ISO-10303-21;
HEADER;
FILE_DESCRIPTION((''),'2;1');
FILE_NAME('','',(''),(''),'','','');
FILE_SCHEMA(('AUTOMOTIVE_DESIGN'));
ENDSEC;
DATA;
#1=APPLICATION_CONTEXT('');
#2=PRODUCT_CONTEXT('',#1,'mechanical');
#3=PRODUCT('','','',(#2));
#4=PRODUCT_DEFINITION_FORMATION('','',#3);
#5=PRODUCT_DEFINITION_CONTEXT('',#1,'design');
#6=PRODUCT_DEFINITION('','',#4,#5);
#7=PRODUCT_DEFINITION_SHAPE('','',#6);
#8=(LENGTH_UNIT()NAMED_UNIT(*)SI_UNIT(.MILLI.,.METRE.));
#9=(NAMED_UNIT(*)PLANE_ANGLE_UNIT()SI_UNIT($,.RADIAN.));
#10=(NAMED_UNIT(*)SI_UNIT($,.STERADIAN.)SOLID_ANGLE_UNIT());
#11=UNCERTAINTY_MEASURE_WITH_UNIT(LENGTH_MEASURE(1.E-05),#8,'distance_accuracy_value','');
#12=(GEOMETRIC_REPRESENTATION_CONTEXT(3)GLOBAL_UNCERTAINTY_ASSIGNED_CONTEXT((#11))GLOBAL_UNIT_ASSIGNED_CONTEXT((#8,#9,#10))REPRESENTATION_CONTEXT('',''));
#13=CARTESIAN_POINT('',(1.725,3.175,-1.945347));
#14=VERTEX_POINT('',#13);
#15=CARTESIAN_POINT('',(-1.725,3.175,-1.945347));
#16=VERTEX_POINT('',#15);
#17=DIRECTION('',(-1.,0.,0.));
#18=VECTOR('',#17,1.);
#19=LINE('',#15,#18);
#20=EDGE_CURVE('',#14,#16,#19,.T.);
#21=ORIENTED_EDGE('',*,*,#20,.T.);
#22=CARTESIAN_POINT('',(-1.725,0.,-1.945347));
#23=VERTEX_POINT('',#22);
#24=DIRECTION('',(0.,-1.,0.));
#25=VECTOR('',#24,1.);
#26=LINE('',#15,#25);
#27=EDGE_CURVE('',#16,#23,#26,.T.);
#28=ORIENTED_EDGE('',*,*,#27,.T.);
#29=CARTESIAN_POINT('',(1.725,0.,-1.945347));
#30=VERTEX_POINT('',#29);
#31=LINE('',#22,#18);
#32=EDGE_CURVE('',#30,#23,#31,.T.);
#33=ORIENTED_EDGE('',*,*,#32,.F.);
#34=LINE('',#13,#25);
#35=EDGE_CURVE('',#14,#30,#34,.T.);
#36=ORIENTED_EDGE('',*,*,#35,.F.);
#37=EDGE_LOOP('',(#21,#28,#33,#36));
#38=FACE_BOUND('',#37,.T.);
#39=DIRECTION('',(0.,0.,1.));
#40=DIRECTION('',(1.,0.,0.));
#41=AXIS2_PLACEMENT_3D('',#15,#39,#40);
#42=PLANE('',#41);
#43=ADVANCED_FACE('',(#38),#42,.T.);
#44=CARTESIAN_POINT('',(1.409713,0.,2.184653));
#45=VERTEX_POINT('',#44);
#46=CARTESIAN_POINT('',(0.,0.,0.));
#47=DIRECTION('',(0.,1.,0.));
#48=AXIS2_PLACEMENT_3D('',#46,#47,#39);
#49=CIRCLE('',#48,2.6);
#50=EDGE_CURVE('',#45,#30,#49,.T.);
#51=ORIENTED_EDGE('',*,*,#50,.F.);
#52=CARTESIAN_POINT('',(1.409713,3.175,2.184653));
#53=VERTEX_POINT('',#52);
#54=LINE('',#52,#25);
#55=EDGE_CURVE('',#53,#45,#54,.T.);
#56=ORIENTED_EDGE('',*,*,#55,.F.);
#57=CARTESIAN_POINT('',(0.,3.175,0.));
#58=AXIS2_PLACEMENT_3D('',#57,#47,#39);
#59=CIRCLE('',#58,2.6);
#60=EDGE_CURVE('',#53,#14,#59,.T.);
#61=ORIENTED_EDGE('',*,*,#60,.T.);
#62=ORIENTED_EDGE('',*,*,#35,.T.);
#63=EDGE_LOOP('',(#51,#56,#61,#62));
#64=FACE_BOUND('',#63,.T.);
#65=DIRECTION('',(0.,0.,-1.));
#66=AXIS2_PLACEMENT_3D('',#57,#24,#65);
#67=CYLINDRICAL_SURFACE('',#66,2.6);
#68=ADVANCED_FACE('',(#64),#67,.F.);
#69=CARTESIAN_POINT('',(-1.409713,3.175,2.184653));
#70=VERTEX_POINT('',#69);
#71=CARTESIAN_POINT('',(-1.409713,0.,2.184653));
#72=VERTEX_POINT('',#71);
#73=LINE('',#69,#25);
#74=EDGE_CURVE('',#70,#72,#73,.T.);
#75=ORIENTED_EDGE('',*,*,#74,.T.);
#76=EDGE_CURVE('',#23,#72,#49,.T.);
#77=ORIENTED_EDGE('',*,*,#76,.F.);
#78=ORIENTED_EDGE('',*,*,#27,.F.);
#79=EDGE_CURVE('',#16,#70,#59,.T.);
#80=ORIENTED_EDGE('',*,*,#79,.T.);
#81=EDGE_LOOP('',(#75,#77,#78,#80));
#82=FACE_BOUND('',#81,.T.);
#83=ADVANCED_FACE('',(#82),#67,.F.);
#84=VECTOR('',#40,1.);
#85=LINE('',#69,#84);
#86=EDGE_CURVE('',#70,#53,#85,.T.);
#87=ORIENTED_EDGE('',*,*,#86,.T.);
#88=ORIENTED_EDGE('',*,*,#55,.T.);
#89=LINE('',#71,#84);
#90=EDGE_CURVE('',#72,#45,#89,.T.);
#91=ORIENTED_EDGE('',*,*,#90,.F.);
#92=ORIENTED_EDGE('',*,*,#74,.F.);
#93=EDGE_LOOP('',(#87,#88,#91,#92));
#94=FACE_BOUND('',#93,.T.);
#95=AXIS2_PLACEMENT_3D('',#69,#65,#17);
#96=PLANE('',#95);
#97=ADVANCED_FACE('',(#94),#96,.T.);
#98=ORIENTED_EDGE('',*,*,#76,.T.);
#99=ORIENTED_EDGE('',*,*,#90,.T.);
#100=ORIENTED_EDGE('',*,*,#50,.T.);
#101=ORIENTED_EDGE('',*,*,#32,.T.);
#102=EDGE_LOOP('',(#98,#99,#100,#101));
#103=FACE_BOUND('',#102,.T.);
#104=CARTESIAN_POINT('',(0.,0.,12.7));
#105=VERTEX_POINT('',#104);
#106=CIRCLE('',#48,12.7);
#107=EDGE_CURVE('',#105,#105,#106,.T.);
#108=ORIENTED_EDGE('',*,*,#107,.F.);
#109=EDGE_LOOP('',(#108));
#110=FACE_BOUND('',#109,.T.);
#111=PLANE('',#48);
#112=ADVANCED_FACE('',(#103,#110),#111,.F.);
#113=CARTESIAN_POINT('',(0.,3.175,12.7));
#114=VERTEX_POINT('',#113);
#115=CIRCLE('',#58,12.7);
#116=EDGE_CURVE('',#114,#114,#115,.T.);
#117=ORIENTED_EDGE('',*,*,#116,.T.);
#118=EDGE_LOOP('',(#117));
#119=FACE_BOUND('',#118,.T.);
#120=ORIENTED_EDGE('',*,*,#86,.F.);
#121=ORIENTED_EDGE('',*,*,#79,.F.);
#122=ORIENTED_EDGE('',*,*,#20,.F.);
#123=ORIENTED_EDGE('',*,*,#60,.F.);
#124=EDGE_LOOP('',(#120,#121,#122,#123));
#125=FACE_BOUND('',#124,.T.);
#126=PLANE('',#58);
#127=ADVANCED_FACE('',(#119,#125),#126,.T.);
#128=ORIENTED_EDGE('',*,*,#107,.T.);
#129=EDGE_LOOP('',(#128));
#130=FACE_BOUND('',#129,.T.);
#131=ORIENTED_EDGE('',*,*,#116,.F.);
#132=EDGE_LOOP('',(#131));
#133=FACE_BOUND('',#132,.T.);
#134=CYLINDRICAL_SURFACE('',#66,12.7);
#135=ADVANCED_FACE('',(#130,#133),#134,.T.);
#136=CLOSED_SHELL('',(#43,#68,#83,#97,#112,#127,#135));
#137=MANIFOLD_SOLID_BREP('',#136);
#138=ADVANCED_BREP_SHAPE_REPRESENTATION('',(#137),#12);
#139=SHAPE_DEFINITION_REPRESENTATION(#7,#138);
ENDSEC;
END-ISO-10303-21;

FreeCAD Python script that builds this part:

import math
import FreeCAD as App
import Part
import Sketcher
Q = App.Units.Quantity

doc = App.newDocument("Part")
body = doc.addObject("PartDesign::Body", "Body")

sketch1 = doc.addObject("Sketcher::SketchObject", "Sketch")
body.addObject(sketch1)
sketch1.AttachmentSupport = (doc.XZ_Plane, [""])
sketch1.MapMode = "FlatFace"
sketch1.addGeometry([
    Part.Circle(App.Vector(0, 0, 0), App.Vector(0, 0, 1), 12.7),
    Part.ArcOfCircle(Part.Circle(App.Vector(0, 0, 0), App.Vector(0, 0, 1), 2.6), math.radians(123), math.radians(228)),
    Part.LineSegment(App.Vector(-1.7, -1.9, 0), App.Vector(1.7, -1.9, 0)),
    Part.ArcOfCircle(Part.Circle(App.Vector(0, 0, 0), App.Vector(0, 0, 1), 2.6), math.radians(-48), math.radians(57)),
    Part.LineSegment(App.Vector(1.4, 2.2, 0), App.Vector(-1.4, 2.2, 0)),
], False)
sketch1.addConstraint([
    Sketcher.Constraint("Coincident", 1, 2, 2, 1),
    Sketcher.Constraint("Coincident", 2, 2, 3, 1),
    Sketcher.Constraint("Coincident", 3, 2, 4, 1),
    Sketcher.Constraint("Coincident", 4, 2, 1, 1),
    Sketcher.Constraint("Horizontal", 2),
    Sketcher.Constraint("Horizontal", 4),
    Sketcher.Constraint("Coincident", 0, 3, -1, 1),
    Sketcher.Constraint("Coincident", 1, 3, -1, 1),
    Sketcher.Constraint("Coincident", 3, 3, -1, 1),
    Sketcher.Constraint("Equal", 1, 3),
    Sketcher.Constraint("Diameter", 0, Q("1 in")),
    Sketcher.Constraint("Radius", 1, Q("2.6 mm")),
    Sketcher.Constraint("DistanceX", 2, 1, 2, 2, Q("3.45 mm")),
    Sketcher.Constraint("DistanceY", 2, 2, 3, 2, Q("4.13 mm")),
])
pad1 = doc.addObject("PartDesign::Pad", "Pad")
body.addObject(pad1)
pad1.Profile = sketch1
pad1.Length = Q("0.125 in")
pad1.Reversed = True

doc.recompute()
